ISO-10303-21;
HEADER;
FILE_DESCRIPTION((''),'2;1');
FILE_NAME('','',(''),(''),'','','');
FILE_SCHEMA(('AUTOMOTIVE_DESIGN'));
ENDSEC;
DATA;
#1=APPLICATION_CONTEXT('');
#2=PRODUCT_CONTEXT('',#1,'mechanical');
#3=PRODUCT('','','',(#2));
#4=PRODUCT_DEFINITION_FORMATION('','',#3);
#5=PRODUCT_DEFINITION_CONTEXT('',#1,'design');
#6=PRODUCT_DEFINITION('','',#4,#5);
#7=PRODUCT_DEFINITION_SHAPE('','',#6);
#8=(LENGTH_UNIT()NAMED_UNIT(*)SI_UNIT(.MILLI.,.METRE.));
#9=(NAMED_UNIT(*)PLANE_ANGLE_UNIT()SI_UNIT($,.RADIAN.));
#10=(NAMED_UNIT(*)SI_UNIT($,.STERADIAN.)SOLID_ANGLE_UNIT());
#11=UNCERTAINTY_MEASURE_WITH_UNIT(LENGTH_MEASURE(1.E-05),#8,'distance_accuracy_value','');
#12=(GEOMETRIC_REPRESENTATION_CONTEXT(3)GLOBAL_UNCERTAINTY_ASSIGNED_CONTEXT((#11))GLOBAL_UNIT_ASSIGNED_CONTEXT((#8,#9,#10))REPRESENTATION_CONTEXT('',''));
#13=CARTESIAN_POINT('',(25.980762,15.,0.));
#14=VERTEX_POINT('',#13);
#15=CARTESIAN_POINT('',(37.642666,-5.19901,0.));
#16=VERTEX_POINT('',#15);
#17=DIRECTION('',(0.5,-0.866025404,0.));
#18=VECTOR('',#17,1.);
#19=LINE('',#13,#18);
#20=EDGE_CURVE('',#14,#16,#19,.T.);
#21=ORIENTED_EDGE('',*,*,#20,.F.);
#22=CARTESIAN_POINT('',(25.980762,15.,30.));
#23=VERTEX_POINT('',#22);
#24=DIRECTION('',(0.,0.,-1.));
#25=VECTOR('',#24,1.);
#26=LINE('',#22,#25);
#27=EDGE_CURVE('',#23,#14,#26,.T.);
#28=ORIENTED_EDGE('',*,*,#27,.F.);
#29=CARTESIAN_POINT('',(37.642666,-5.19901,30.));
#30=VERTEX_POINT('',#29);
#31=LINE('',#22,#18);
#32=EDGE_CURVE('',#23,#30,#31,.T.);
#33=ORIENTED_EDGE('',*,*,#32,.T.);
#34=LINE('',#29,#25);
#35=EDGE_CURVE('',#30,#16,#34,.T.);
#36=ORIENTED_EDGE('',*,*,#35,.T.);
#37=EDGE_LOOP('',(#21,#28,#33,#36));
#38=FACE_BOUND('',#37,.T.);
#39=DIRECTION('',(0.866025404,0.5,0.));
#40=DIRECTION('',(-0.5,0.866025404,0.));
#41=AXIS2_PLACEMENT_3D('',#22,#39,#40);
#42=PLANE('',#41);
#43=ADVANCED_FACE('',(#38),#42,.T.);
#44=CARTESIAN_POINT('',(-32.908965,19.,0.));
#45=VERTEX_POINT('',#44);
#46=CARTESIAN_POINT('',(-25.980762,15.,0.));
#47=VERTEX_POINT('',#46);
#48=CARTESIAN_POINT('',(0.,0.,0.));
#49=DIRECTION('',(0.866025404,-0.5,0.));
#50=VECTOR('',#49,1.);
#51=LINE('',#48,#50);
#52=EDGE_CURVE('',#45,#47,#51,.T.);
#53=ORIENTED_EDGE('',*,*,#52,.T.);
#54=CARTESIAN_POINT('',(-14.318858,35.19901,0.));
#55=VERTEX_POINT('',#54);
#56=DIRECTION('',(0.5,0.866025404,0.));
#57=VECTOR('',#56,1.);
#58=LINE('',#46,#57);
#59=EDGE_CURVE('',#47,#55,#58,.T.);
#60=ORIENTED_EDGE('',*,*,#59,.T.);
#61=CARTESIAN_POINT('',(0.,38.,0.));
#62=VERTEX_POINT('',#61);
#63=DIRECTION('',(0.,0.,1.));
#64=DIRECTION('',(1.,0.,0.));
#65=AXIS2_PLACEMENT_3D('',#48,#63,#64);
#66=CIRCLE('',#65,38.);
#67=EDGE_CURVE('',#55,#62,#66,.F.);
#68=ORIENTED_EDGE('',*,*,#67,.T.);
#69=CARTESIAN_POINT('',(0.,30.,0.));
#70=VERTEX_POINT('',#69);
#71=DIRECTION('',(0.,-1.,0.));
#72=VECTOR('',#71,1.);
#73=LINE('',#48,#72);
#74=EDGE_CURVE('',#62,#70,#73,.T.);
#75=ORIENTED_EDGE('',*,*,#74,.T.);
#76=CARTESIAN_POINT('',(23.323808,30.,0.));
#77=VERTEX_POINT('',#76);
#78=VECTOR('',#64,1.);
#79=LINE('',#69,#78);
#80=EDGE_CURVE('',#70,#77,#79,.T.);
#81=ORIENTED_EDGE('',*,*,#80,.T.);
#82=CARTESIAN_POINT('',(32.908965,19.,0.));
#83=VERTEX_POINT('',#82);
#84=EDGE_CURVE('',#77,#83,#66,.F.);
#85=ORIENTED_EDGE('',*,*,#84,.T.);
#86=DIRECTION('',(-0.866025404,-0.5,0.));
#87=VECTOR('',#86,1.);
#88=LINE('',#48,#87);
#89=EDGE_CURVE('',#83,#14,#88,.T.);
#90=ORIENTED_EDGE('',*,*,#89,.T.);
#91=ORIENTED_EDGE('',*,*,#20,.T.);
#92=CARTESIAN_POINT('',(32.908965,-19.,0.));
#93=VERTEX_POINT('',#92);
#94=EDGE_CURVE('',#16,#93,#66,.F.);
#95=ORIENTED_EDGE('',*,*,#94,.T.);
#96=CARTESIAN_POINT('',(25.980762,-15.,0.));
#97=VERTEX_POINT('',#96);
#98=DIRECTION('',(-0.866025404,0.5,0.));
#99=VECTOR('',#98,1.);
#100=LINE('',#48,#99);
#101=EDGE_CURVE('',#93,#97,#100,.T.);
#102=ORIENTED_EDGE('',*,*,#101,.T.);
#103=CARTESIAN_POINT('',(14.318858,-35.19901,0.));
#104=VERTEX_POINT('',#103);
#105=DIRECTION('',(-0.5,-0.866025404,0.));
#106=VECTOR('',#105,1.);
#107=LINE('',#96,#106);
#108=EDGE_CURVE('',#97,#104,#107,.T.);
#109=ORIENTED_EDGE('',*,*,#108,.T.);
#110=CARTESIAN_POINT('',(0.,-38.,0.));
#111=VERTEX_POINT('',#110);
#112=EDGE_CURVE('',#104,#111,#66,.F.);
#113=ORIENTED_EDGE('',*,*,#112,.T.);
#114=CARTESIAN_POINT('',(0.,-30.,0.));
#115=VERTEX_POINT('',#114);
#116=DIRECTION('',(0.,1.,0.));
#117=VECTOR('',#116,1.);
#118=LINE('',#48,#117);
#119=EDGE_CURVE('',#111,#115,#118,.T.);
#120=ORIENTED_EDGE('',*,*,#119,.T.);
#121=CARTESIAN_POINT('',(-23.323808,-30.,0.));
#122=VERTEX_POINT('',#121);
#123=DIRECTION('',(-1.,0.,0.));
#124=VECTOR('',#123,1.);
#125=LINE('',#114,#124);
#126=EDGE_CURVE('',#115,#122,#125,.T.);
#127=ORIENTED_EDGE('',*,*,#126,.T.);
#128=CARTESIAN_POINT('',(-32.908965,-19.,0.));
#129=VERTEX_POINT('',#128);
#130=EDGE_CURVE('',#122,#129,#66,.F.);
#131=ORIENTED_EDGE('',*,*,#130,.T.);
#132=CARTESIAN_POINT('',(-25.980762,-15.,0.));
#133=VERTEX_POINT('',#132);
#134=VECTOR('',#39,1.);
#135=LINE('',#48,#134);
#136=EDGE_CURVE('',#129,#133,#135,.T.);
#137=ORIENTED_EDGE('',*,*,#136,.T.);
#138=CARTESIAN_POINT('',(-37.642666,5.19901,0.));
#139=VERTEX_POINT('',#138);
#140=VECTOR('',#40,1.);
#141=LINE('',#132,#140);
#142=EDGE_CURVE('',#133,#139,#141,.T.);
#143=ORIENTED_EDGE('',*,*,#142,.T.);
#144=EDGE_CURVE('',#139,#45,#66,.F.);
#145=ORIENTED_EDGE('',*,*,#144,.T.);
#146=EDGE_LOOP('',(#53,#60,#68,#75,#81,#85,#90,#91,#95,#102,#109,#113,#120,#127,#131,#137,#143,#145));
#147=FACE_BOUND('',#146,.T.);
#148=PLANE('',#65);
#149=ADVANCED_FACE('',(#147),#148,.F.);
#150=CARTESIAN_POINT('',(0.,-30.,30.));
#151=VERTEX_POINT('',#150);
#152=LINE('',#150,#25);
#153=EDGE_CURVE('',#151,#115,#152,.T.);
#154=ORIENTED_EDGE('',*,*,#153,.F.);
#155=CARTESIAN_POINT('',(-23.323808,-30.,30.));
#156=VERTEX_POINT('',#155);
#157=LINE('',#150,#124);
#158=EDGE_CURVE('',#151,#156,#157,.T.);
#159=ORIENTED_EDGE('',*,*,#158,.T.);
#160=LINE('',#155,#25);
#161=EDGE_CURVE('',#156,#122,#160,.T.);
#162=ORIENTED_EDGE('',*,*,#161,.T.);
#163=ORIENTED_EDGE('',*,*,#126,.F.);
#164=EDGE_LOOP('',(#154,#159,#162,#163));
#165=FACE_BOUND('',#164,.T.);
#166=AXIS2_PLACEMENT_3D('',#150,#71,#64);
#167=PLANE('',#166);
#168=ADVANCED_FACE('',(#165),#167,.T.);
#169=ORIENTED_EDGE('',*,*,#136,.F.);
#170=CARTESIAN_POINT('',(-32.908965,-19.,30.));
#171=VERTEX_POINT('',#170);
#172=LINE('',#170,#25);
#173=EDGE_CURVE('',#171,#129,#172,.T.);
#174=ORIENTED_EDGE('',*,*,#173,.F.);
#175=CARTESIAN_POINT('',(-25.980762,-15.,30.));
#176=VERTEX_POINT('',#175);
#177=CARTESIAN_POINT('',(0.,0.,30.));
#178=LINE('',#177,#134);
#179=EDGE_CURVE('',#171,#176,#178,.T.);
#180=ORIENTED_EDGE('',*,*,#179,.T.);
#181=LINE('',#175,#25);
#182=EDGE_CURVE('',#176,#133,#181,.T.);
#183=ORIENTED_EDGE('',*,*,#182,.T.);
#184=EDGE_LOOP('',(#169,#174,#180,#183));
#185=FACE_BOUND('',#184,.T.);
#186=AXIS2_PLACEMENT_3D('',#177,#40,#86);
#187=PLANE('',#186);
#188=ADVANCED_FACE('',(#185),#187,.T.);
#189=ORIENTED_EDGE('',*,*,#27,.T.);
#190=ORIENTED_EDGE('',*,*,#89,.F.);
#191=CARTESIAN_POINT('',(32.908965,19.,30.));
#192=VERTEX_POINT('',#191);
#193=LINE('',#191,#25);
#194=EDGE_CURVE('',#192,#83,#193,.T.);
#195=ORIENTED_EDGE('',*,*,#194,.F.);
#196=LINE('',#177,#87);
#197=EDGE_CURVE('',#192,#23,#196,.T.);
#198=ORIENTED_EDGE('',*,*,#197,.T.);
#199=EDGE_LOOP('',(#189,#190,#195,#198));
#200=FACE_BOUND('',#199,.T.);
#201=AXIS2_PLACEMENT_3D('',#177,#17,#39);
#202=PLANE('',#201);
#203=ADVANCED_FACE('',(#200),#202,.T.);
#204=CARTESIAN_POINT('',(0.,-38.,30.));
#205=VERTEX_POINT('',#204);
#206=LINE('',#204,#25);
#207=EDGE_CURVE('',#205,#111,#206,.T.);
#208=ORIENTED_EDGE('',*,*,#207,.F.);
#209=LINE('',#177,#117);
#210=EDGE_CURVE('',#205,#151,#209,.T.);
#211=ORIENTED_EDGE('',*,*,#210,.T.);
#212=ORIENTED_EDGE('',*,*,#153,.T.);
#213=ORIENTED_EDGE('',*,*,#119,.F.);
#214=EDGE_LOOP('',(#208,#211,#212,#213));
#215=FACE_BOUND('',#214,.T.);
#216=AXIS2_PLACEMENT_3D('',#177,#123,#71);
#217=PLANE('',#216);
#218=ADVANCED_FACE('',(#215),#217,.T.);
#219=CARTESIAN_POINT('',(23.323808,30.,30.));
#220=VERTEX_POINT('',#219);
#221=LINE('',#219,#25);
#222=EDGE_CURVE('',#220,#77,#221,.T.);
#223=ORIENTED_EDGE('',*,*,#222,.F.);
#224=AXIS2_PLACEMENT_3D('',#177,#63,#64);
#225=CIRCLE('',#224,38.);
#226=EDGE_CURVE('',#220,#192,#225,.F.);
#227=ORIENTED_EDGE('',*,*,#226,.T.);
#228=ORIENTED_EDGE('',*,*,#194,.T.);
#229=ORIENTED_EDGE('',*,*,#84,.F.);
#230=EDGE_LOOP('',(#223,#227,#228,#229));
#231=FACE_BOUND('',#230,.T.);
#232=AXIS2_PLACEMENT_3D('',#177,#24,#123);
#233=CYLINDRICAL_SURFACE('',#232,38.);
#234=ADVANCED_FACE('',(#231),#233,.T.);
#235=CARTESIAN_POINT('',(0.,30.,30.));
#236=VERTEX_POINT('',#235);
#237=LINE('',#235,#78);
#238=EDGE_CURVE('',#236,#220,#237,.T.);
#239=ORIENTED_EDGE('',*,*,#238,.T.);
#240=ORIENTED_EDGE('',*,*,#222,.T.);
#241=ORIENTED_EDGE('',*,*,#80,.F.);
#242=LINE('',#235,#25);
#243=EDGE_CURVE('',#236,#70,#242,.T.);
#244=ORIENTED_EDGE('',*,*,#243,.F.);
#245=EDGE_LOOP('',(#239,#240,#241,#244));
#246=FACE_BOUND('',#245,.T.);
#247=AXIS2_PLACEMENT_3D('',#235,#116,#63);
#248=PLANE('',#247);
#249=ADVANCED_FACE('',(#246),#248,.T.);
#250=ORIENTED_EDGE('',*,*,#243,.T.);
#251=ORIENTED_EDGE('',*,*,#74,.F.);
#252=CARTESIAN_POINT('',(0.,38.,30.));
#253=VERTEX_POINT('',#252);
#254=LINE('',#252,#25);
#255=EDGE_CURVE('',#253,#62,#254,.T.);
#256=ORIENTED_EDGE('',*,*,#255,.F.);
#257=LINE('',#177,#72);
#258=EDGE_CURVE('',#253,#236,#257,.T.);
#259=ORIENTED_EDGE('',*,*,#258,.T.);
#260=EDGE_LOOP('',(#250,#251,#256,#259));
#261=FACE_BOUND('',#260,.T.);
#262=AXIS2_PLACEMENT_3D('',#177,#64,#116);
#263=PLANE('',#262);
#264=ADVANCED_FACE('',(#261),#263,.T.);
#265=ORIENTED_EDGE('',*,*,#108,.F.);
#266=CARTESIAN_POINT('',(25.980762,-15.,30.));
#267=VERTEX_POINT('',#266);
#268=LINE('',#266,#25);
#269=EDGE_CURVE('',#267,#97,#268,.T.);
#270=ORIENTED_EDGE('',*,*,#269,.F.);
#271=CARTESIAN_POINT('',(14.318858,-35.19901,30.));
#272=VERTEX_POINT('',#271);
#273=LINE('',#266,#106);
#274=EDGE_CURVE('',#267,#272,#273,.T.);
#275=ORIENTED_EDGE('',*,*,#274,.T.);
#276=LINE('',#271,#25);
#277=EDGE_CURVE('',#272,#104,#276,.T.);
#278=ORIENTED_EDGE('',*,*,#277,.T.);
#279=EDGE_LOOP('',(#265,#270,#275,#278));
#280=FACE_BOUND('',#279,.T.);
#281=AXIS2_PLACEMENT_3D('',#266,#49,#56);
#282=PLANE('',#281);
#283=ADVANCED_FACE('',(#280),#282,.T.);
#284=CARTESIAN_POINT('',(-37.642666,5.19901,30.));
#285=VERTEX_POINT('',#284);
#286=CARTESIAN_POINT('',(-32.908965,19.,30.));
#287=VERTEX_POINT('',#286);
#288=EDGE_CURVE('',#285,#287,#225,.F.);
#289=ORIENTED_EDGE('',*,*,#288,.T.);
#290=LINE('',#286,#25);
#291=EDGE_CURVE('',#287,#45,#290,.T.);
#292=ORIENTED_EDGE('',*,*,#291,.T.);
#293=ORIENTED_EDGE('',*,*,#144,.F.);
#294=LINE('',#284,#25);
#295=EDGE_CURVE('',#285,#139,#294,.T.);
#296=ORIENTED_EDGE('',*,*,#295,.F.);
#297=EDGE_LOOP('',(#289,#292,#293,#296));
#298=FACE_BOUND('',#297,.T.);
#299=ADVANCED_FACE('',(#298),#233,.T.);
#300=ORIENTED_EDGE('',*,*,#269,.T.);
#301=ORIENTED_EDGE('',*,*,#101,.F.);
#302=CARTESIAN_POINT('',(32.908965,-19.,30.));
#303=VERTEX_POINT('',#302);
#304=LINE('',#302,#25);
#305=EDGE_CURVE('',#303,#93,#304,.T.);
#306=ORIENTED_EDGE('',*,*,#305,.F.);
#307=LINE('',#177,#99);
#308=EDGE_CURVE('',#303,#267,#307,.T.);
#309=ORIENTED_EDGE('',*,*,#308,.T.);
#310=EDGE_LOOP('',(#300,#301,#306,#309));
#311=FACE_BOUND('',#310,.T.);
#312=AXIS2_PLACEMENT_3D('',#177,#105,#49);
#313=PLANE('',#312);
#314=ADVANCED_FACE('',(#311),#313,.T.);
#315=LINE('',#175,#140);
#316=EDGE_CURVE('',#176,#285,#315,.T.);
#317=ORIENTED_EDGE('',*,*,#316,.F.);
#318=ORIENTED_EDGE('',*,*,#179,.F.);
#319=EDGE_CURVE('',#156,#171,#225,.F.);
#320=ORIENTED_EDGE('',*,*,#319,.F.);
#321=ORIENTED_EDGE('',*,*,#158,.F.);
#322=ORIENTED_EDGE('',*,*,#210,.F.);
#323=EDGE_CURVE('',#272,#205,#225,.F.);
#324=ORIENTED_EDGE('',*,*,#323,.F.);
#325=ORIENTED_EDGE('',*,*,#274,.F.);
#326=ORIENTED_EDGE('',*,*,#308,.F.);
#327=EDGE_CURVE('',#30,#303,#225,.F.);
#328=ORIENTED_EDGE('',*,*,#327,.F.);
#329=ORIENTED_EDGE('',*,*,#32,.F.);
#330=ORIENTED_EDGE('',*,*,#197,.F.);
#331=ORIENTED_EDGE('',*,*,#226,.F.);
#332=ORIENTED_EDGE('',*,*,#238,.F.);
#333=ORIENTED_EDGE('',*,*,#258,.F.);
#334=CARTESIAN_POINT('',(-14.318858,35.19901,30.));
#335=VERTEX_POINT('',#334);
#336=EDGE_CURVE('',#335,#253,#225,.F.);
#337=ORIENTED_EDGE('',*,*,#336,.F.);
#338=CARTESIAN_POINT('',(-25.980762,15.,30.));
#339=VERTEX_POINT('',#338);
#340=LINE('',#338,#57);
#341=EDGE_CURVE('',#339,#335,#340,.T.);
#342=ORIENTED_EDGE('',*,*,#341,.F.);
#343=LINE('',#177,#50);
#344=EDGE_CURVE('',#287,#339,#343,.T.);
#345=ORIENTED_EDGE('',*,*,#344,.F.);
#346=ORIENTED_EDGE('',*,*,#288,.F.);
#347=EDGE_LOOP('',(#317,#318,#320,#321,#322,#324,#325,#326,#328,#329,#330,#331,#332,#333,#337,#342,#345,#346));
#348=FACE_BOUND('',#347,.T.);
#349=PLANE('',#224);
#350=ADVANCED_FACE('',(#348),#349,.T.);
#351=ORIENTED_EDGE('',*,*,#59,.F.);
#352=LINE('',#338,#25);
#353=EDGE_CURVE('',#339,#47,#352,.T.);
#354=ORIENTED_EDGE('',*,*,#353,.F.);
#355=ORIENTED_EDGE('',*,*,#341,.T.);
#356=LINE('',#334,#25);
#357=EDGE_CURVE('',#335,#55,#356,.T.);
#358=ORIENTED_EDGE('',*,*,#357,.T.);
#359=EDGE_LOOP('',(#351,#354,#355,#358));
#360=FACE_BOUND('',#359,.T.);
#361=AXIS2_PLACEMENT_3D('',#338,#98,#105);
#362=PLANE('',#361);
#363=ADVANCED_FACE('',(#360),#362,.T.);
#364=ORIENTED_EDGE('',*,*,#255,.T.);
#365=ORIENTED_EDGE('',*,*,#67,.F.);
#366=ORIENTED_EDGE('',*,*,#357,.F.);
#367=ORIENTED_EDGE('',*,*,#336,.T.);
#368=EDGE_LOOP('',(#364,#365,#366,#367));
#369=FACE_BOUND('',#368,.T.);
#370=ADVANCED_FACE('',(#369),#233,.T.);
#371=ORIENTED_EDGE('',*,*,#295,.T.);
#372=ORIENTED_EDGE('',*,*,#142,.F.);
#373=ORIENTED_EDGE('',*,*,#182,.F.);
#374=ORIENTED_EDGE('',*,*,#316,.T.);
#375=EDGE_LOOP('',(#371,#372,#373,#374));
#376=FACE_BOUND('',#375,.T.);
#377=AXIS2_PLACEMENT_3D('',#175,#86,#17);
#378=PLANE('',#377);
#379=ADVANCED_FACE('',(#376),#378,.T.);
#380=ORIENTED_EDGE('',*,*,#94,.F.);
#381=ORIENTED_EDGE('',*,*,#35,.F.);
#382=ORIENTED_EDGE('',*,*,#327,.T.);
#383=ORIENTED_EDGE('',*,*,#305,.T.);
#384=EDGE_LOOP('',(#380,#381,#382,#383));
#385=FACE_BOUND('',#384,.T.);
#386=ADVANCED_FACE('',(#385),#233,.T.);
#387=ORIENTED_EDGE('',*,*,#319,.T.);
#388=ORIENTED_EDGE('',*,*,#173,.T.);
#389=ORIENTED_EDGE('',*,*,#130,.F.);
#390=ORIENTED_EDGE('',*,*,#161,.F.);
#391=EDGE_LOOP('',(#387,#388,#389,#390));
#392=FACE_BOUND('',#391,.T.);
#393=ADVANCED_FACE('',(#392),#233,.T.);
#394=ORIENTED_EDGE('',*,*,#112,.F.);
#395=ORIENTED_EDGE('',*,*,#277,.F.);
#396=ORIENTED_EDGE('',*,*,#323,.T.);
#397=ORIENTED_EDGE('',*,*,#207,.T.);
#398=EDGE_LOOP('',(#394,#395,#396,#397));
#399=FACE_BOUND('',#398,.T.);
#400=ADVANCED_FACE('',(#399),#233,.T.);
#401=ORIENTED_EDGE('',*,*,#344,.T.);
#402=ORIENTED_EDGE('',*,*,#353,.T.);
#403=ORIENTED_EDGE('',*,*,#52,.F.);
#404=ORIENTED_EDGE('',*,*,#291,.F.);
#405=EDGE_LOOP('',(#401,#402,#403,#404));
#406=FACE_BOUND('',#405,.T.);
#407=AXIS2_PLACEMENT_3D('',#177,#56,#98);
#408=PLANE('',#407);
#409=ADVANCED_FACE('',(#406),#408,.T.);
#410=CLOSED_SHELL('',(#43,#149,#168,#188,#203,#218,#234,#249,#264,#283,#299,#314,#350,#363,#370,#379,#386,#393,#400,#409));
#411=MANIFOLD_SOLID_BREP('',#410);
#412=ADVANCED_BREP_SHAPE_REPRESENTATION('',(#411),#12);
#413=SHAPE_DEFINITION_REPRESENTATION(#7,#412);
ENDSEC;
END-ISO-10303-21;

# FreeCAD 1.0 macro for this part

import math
import FreeCAD as App
import Part
import Sketcher
Q = App.Units.Quantity

doc = App.newDocument("Part")
params = doc.addObject("Spreadsheet::Sheet", "Params")
for row, (alias, value) in enumerate([
    ("sketch1_radius", "38 mm"),
    ("sketch1_height", "8 mm"),
    ("sketch1_length", "8 mm"),
    ("pad1_length", "30 mm"),
], start=1):
    params.set(f"A{row}", alias)
    params.set(f"B{row}", "=" + value)
    params.setAlias(f"B{row}", alias)

body = doc.addObject("PartDesign::Body", "Body")

sketch1 = body.newObject("Sketcher::SketchObject", "Sketch")
sketch1.AttachmentSupport = (doc.getObject("XY_Plane"), [""])
sketch1.MapMode = "FlatFace"
sketch1.addGeometry([
    Part.LineSegment(App.Vector(0, 30, 0), App.Vector(0, 38, 0)),
    Part.ArcOfCircle(Part.Circle(App.Vector(0, 0, 0), App.Vector(0, 0, 1), 38), math.radians(90), math.radians(112)),
    Part.LineSegment(App.Vector(-14, 35, 0), App.Vector(-26, 15, 0)),
    Part.LineSegment(App.Vector(-26, 15, 0), App.Vector(-33, 19, 0)),
    Part.ArcOfCircle(Part.Circle(App.Vector(0, 0, 0), App.Vector(0, 0, 1), 38), math.radians(150), math.radians(172)),
    Part.LineSegment(App.Vector(-38, 5, 0), App.Vector(-26, -15, 0)),
    Part.LineSegment(App.Vector(-26, -15, 0), App.Vector(-33, -19, 0)),
    Part.ArcOfCircle(Part.Circle(App.Vector(0, 0, 0), App.Vector(0, 0, 1), 38), math.radians(-150), math.radians(-128)),
    Part.LineSegment(App.Vector(-23, -30, 0), App.Vector(0, -30, 0)),
    Part.LineSegment(App.Vector(0, -30, 0), App.Vector(0, -38, 0)),
    Part.ArcOfCircle(Part.Circle(App.Vector(0, 0, 0), App.Vector(0, 0, 1), 38), math.radians(-90), math.radians(-68)),
    Part.LineSegment(App.Vector(14, -35, 0), App.Vector(26, -15, 0)),
    Part.LineSegment(App.Vector(26, -15, 0), App.Vector(33, -19, 0)),
    Part.ArcOfCircle(Part.Circle(App.Vector(0, 0, 0), App.Vector(0, 0, 1), 38), math.radians(-30), math.radians(-8)),
    Part.LineSegment(App.Vector(38, -5, 0), App.Vector(26, 15, 0)),
    Part.LineSegment(App.Vector(26, 15, 0), App.Vector(33, 19, 0)),
    Part.ArcOfCircle(Part.Circle(App.Vector(0, 0, 0), App.Vector(0, 0, 1), 38), math.radians(30), math.radians(52)),
    Part.LineSegment(App.Vector(23, 30, 0), App.Vector(0, 30, 0)),
], False)
sketch1.addConstraint([
    Sketcher.Constraint("Coincident", 0, 2, 1, 1),
    Sketcher.Constraint("Coincident", 1, 2, 2, 1),
    Sketcher.Constraint("Coincident", 2, 2, 3, 1),
    Sketcher.Constraint("Coincident", 3, 2, 4, 1),
    Sketcher.Constraint("Coincident", 4, 2, 5, 1),
    Sketcher.Constraint("Coincident", 5, 2, 6, 1),
    Sketcher.Constraint("Coincident", 6, 2, 7, 1),
    Sketcher.Constraint("Coincident", 7, 2, 8, 1),
    Sketcher.Constraint("Coincident", 8, 2, 9, 1),
    Sketcher.Constraint("Coincident", 9, 2, 10, 1),
    Sketcher.Constraint("Coincident", 10, 2, 11, 1),
    Sketcher.Constraint("Coincident", 11, 2, 12, 1),
    Sketcher.Constraint("Coincident", 12, 2, 13, 1),
    Sketcher.Constraint("Coincident", 13, 2, 14, 1),
    Sketcher.Constraint("Coincident", 14, 2, 15, 1),
    Sketcher.Constraint("Coincident", 15, 2, 16, 1),
    Sketcher.Constraint("Coincident", 16, 2, 17, 1),
    Sketcher.Constraint("Coincident", 17, 2, 0, 1),
    Sketcher.Constraint("Vertical", 0),
    Sketcher.Constraint("Horizontal", 8),
    Sketcher.Constraint("Vertical", 9),
    Sketcher.Constraint("Horizontal", 17),
    Sketcher.Constraint("Coincident", 1, 3, -1, 1),
    Sketcher.Constraint("Coincident", 4, 3, -1, 1),
    Sketcher.Constraint("Coincident", 7, 3, -1, 1),
    Sketcher.Constraint("Coincident", 10, 3, -1, 1),
    Sketcher.Constraint("Coincident", 13, 3, -1, 1),
    Sketcher.Constraint("Coincident", 16, 3, -1, 1),
    Sketcher.Constraint("Equal", 1, 4),
    Sketcher.Constraint("Equal", 4, 7),
    Sketcher.Constraint("Equal", 7, 10),
    Sketcher.Constraint("Equal", 10, 13),
    Sketcher.Constraint("Equal", 13, 16),
    Sketcher.Constraint("Symmetric", 2, 2, 11, 2, -1, 1),
    Sketcher.Constraint("Symmetric", 5, 2, 14, 2, -1, 1),
    Sketcher.Constraint("Symmetric", 8, 2, 17, 2, -1, 1),
    Sketcher.Constraint("Symmetric", 5, 2, 11, 2, -2),
    Sketcher.Constraint("PointOnObject", 0, 2, -2),
    Sketcher.Constraint("Perpendicular", 2, 3),
    Sketcher.Constraint("Perpendicular", 5, 6),
    Sketcher.Constraint("Perpendicular", 3, 11),
    Sketcher.Constraint("Perpendicular", 11, 12),
    Sketcher.Constraint("Perpendicular", 6, 14),
    Sketcher.Constraint("Perpendicular", 14, 15),
    Sketcher.Constraint("Horizontal", 6, 2, 12, 2),
    Sketcher.Constraint("Equal", 2, 5),
    Sketcher.Constraint("Radius", 1, 38.0),
    Sketcher.Constraint("DistanceY", 0, 1, 0, 2, 8.0),
    Sketcher.Constraint("Angle", 2, Q("-120 deg")),
    Sketcher.Constraint("Distance", 3, 8.0),
])
sketch1.setExpression("Constraints[46]", "Params.sketch1_radius")
sketch1.setExpression("Constraints[47]", "Params.sketch1_height")
sketch1.setExpression("Constraints[49]", "Params.sketch1_length")
pad1 = body.newObject("PartDesign::Pad", "Pad")
pad1.Profile = sketch1
pad1.setExpression("Length", "Params.pad1_length")

doc.recompute()
